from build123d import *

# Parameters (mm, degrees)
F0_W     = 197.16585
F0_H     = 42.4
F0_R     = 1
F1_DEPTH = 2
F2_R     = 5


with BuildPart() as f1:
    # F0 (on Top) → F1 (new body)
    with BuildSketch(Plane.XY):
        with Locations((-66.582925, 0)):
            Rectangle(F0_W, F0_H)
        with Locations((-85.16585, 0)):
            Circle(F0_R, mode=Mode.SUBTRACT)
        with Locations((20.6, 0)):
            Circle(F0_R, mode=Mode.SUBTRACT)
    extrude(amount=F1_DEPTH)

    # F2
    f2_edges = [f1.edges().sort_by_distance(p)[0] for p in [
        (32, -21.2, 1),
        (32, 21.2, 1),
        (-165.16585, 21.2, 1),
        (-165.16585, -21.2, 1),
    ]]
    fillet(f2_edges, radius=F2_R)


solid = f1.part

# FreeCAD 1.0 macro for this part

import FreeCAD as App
import Part
import Sketcher

V = App.Vector
Q = App.Units.Quantity


def edges_at(feature, points):
    """Names of the edges that pass closest to the given points."""
    edges = feature.Shape.Edges
    near = lambda p: min(range(len(edges)), key=lambda i: edges[i].distToShape(Part.Vertex(*p))[0])
    return sorted({f"Edge{near(p) + 1}" for p in points})

doc = App.newDocument("Part")
body = doc.addObject("PartDesign::Body", "Body")

sketch1 = body.newObject("Sketcher::SketchObject", "Sketch")
sketch1.AttachmentSupport = (doc.getObject("XY_Plane"), [""])
sketch1.MapMode = "FlatFace"
sketch1.addGeometry(Part.LineSegment(V(-165.16585, 21.2, 0), V(-165.16585, -21.2, 0)), False)
sketch1.addGeometry(Part.LineSegment(V(-165.16585, -21.2, 0), V(32, -21.2, 0)), False)
sketch1.addGeometry(Part.LineSegment(V(32, -21.2, 0), V(32, 21.2, 0)), False)
sketch1.addGeometry(Part.LineSegment(V(32, 21.2, 0), V(-165.16585, 21.2, 0)), False)
sketch1.addGeometry(Part.Circle(V(-85.16585, 0, 0), V(0, 0, 1), 1), False)
sketch1.addGeometry(Part.Circle(V(20.6, 0, 0), V(0, 0, 1), 1), False)
sketch1.addConstraint(Sketcher.Constraint("Coincident", 0, 2, 1, 1))
sketch1.addConstraint(Sketcher.Constraint("Coincident", 1, 2, 2, 1))
sketch1.addConstraint(Sketcher.Constraint("Coincident", 2, 2, 3, 1))
sketch1.addConstraint(Sketcher.Constraint("Coincident", 3, 2, 0, 1))
sketch1.addConstraint(Sketcher.Constraint("Vertical", 0))
sketch1.addConstraint(Sketcher.Constraint("Horizontal", 1))
sketch1.addConstraint(Sketcher.Constraint("Vertical", 2))
sketch1.addConstraint(Sketcher.Constraint("Horizontal", 3))
sketch1.addConstraint(Sketcher.Constraint("Equal", 4, 5))
sketch1.addConstraint(Sketcher.Constraint("PointOnObject", 4, 3, -1))
sketch1.addConstraint(Sketcher.Constraint("PointOnObject", 5, 3, -1))
sketch1.addConstraint(Sketcher.Constraint("Diameter", 4, Q("2 mm")))
sketch1.addConstraint(Sketcher.Constraint("DistanceY", 0, 2, 0, 1, Q("42.4 mm")))
sketch1.addConstraint(Sketcher.Constraint("DistanceX", -1, 1, 1, 2, Q("32 mm")))
sketch1.addConstraint(Sketcher.Constraint("DistanceX", 0, 2, 4, 3, Q("80 mm")))
sketch1.addConstraint(Sketcher.Constraint("DistanceX", -1, 1, 5, 3, Q("20.6 mm")))
sketch1.addConstraint(Sketcher.Constraint("DistanceY", 0, 2, -1, 1, Q("21.2 mm")))
sketch1.addConstraint(Sketcher.Constraint("DistanceX", 1, 1, 1, 2, Q("197.16585 mm")))
pad1 = body.newObject("PartDesign::Pad", "Pad")
pad1.Profile = sketch1
pad1.Length = 2
doc.recompute()

fillet = body.newObject("PartDesign::Fillet", "Fillet")
fillet.Base = (pad1, edges_at(pad1, [
    (32, -21.2, 1),
    (32, 21.2, 1),
    (-165.166, 21.2, 1),
    (-165.166, -21.2, 1),
]))
fillet.Radius = 5

doc.recompute()
